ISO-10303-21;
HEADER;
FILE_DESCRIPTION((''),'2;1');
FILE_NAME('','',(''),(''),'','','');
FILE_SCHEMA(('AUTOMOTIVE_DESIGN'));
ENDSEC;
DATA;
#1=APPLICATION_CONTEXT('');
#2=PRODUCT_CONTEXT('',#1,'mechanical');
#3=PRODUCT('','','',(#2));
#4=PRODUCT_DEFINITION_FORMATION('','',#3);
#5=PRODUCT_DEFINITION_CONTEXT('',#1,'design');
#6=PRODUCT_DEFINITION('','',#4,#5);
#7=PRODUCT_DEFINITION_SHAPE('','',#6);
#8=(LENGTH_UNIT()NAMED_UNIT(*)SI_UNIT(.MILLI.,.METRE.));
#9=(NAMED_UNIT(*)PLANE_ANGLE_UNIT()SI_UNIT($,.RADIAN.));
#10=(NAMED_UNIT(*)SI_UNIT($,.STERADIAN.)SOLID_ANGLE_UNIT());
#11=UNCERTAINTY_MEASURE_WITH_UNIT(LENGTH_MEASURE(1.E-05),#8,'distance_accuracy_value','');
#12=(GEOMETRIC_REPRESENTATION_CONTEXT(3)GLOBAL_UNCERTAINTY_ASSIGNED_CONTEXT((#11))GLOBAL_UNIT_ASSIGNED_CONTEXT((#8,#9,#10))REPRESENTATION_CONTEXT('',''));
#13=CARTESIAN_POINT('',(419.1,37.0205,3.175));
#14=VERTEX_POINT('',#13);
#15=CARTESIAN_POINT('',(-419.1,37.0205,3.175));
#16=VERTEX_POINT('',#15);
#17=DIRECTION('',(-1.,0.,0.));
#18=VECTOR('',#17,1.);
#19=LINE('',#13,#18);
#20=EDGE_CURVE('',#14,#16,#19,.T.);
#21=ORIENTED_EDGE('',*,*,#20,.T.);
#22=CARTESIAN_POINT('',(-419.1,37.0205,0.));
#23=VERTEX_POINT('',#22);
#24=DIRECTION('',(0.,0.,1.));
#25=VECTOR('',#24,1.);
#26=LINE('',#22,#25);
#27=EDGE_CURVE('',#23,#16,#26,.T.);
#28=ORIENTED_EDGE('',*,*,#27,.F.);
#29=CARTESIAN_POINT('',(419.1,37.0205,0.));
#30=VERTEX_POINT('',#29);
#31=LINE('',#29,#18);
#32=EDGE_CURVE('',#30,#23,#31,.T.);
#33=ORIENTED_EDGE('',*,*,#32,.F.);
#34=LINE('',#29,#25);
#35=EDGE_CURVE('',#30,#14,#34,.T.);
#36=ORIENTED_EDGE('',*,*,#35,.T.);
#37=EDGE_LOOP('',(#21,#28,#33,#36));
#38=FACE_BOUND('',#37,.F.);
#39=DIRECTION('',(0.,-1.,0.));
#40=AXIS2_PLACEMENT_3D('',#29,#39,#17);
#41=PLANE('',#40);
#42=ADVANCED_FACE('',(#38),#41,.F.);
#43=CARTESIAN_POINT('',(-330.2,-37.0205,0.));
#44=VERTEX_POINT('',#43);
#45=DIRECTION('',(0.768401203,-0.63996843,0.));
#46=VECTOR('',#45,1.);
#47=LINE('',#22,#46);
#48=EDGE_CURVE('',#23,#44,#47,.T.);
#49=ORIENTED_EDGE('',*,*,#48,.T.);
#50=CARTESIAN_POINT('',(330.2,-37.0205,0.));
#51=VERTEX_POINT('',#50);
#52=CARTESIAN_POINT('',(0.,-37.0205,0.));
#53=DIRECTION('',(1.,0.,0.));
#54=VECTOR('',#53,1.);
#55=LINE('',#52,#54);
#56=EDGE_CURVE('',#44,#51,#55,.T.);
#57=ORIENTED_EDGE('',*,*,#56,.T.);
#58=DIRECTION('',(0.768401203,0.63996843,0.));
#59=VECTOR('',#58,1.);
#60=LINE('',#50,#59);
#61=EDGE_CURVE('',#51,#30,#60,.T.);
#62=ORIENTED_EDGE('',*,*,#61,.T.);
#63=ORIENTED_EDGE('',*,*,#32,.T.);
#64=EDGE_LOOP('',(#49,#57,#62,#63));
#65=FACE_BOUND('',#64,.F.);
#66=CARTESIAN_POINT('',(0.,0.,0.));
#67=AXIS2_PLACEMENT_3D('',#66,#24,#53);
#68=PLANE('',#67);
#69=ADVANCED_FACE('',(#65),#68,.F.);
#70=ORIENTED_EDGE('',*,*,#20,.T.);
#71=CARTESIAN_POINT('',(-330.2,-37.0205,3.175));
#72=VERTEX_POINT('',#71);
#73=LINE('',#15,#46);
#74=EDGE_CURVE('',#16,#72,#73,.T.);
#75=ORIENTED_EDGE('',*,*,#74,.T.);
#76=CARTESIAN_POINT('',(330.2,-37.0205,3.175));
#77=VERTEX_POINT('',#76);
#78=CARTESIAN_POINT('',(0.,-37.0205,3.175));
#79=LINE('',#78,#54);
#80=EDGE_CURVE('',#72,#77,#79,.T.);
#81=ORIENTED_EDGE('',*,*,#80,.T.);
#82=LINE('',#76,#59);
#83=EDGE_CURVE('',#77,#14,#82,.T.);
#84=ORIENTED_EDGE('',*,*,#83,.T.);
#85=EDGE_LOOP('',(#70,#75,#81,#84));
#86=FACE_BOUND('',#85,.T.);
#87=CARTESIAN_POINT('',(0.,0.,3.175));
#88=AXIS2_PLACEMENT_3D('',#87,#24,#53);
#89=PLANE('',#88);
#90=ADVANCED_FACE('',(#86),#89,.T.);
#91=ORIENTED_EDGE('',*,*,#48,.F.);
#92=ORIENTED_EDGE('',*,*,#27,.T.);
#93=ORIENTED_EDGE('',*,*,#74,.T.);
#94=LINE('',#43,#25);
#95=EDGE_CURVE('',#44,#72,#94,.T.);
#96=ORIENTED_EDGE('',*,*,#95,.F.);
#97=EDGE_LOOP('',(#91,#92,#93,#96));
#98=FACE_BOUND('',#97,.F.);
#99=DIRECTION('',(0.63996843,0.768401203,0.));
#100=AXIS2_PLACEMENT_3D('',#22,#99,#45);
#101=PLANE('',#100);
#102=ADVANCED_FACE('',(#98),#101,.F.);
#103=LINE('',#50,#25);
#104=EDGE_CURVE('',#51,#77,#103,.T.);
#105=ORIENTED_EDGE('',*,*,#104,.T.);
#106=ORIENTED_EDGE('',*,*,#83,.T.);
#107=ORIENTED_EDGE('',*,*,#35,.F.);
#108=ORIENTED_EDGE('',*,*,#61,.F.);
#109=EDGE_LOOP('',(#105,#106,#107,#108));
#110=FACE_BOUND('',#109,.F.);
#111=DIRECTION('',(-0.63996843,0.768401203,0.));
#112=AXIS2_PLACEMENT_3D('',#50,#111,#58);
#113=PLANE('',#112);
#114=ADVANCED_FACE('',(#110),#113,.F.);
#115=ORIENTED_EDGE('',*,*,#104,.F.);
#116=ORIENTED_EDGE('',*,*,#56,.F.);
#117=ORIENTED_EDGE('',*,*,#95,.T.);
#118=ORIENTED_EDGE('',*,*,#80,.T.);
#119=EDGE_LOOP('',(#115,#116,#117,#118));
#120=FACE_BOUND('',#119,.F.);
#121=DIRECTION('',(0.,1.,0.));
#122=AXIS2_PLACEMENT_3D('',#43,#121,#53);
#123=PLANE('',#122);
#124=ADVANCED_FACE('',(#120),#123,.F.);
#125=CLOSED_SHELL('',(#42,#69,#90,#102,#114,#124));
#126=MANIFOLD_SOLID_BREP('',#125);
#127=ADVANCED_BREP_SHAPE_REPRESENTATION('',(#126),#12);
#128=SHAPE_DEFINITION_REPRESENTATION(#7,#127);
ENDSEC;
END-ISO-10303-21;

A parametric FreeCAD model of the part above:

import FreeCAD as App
import Part
import Sketcher

V = App.Vector
Q = App.Units.Quantity


def add_polygon(sketch, points):
    """Adds a closed chain of lines whose ends are joined by coincident constraints."""
    first, n = sketch.GeometryCount, len(points)
    for a, b in zip(points, points[1:] + points[:1]):
        sketch.addGeometry(Part.LineSegment(App.Vector(*a, 0), App.Vector(*b, 0)), False)
    for i in range(n):
        sketch.addConstraint(Sketcher.Constraint("Coincident", first + i, 2, first + (i + 1) % n, 1))

doc = App.newDocument("Part")
body = doc.addObject("PartDesign::Body", "Body")

sketch1 = doc.addObject("Sketcher::SketchObject", "Sketch")
body.addObject(sketch1)
sketch1.AttachmentSupport = (doc.XY_Plane, [""])
sketch1.MapMode = "FlatFace"
add_polygon(sketch1, [(-330, -37), (330, -37), (419, 37), (-419, 37)])
sketch1.addConstraint([
    Sketcher.Constraint("Horizontal", 0),
    Sketcher.Constraint("Horizontal", 2),
    Sketcher.Constraint("Equal", 1, 3),
    Sketcher.Constraint("DistanceX", 0, 1, 0, 2, Q("26 in")),
    Sketcher.Constraint("DistanceX", 2, 2, 2, 1, Q("33 in")),
    Sketcher.Constraint("DistanceX", -1, 1, 0, 2, Q("13 in")),
    Sketcher.Constraint("DistanceY", 0, 2, 1, 2, Q("2.915 in")),
    Sketcher.Constraint("DistanceY", 0, 2, -1, 1, Q("1.4575 in")),
])
pad1 = doc.addObject("PartDesign::Pad", "Pad")
body.addObject(pad1)
pad1.Profile = sketch1
pad1.Length = Q("0.125 in")

doc.recompute()
